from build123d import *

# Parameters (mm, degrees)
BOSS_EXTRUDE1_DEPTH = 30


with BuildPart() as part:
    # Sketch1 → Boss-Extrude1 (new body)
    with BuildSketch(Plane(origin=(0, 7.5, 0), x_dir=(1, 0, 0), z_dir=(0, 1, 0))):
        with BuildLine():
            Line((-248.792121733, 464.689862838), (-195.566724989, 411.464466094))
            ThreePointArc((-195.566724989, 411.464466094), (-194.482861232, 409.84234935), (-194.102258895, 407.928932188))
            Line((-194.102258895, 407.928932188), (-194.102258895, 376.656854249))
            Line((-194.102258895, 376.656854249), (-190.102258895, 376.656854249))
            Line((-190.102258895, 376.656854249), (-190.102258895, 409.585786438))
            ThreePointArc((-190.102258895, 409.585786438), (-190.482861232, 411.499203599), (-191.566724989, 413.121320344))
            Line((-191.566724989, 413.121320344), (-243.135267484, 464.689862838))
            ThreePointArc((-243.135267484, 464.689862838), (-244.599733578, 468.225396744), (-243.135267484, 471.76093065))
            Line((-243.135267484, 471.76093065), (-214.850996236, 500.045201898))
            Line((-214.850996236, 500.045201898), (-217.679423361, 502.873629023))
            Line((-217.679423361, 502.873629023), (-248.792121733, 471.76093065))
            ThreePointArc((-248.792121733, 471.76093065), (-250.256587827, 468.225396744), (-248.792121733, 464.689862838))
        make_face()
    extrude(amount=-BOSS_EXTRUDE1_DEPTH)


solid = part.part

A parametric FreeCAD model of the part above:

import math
import FreeCAD as App
import Part
import Sketcher

V = App.Vector

doc = App.newDocument("Part")
body = doc.addObject("PartDesign::Body", "Body")

sketch1 = body.newObject("Sketcher::SketchObject", "Sketch")
sketch1.AttachmentSupport = (doc.getObject("XZ_Plane"), [""])
sketch1.MapMode = "FlatFace"
sketch1.AttachmentOffset = App.Placement(V(0, 0, -7.5), App.Rotation())
sketch1.addGeometry([
    Part.LineSegment(V(-248.792122, -464.689863, 0), V(-195.566725, -411.464466, 0)),
    Part.ArcOfCircle(Part.Circle(V(-199.102259, -407.928932, 0), V(0, 0, 1), 5), math.radians(-45), math.radians(0)),
    Part.LineSegment(V(-194.102259, -407.928932, 0), V(-194.102259, -376.656854, 0)),
    Part.LineSegment(V(-194.102259, -376.656854, 0), V(-190.102259, -376.656854, 0)),
    Part.LineSegment(V(-190.102259, -376.656854, 0), V(-190.102259, -409.585786, 0)),
    Part.ArcOfCircle(Part.Circle(V(-195.102259, -409.585786, 0), V(0, 0, 1), 5), math.radians(-45), math.radians(0)),
    Part.LineSegment(V(-191.566725, -413.12132, 0), V(-243.135267, -464.689863, 0)),
    Part.ArcOfCircle(Part.Circle(V(-239.599734, -468.225397, 0), V(0, 0, 1), 5), math.radians(135), math.radians(225)),
    Part.LineSegment(V(-243.135267, -471.760931, 0), V(-214.850996, -500.045202, 0)),
    Part.LineSegment(V(-214.850996, -500.045202, 0), V(-217.679423, -502.873629, 0)),
    Part.LineSegment(V(-217.679423, -502.873629, 0), V(-248.792122, -471.760931, 0)),
    Part.ArcOfCircle(Part.Circle(V(-245.256588, -468.225397, 0), V(0, 0, 1), 5), math.radians(135), math.radians(225)),
], False)
sketch1.addConstraint([
    Sketcher.Constraint("Tangent", 0, 2, 1, 1),
    Sketcher.Constraint("Tangent", 1, 2, 2, 1),
    Sketcher.Constraint("Coincident", 2, 2, 3, 1),
    Sketcher.Constraint("Coincident", 3, 2, 4, 1),
    Sketcher.Constraint("Tangent", 4, 2, 5, 2),
    Sketcher.Constraint("Tangent", 5, 1, 6, 1),
    Sketcher.Constraint("Tangent", 6, 2, 7, 1),
    Sketcher.Constraint("Tangent", 7, 2, 8, 1),
    Sketcher.Constraint("Coincident", 8, 2, 9, 1),
    Sketcher.Constraint("Coincident", 9, 2, 10, 1),
    Sketcher.Constraint("Tangent", 10, 2, 11, 2),
    Sketcher.Constraint("Tangent", 11, 1, 0, 1),
    Sketcher.Constraint("Vertical", 2),
    Sketcher.Constraint("Horizontal", 3),
    Sketcher.Constraint("Vertical", 4),
    Sketcher.Constraint("Equal", 1, 5),
    Sketcher.Constraint("Equal", 5, 7),
    Sketcher.Constraint("Equal", 7, 11),
    Sketcher.Constraint("Parallel", 0, 6),
    Sketcher.Constraint("Perpendicular", 6, 8),
    Sketcher.Constraint("Perpendicular", 8, 9),
    Sketcher.Constraint("Perpendicular", 9, 10),
    Sketcher.Constraint("Horizontal", 7, 3, 11, 3),
    Sketcher.Constraint("Vertical", 6, 2, 7, 2),
    Sketcher.Constraint("Radius", 1, 5.0),
    Sketcher.Constraint("DistanceX", 3, 1, 3, 2, 4.0),
    Sketcher.Constraint("Distance", 8, 40.0),
    Sketcher.Constraint("Distance", 9, 4.0),
    Sketcher.Constraint("DistanceY", 7, 2, 1, 3, 63.831998),
    Sketcher.Constraint("DistanceY", 8, 2, -1, 1, 500.045202),
    Sketcher.Constraint("DistanceY", 2, 1, 2, 2, 31.272078),
    Sketcher.Constraint("DistanceX", 1, 3, -1, 1, 199.102259),
])
pad1 = body.newObject("PartDesign::Pad", "Pad")
pad1.Profile = sketch1
pad1.Length = 30

doc.recompute()
